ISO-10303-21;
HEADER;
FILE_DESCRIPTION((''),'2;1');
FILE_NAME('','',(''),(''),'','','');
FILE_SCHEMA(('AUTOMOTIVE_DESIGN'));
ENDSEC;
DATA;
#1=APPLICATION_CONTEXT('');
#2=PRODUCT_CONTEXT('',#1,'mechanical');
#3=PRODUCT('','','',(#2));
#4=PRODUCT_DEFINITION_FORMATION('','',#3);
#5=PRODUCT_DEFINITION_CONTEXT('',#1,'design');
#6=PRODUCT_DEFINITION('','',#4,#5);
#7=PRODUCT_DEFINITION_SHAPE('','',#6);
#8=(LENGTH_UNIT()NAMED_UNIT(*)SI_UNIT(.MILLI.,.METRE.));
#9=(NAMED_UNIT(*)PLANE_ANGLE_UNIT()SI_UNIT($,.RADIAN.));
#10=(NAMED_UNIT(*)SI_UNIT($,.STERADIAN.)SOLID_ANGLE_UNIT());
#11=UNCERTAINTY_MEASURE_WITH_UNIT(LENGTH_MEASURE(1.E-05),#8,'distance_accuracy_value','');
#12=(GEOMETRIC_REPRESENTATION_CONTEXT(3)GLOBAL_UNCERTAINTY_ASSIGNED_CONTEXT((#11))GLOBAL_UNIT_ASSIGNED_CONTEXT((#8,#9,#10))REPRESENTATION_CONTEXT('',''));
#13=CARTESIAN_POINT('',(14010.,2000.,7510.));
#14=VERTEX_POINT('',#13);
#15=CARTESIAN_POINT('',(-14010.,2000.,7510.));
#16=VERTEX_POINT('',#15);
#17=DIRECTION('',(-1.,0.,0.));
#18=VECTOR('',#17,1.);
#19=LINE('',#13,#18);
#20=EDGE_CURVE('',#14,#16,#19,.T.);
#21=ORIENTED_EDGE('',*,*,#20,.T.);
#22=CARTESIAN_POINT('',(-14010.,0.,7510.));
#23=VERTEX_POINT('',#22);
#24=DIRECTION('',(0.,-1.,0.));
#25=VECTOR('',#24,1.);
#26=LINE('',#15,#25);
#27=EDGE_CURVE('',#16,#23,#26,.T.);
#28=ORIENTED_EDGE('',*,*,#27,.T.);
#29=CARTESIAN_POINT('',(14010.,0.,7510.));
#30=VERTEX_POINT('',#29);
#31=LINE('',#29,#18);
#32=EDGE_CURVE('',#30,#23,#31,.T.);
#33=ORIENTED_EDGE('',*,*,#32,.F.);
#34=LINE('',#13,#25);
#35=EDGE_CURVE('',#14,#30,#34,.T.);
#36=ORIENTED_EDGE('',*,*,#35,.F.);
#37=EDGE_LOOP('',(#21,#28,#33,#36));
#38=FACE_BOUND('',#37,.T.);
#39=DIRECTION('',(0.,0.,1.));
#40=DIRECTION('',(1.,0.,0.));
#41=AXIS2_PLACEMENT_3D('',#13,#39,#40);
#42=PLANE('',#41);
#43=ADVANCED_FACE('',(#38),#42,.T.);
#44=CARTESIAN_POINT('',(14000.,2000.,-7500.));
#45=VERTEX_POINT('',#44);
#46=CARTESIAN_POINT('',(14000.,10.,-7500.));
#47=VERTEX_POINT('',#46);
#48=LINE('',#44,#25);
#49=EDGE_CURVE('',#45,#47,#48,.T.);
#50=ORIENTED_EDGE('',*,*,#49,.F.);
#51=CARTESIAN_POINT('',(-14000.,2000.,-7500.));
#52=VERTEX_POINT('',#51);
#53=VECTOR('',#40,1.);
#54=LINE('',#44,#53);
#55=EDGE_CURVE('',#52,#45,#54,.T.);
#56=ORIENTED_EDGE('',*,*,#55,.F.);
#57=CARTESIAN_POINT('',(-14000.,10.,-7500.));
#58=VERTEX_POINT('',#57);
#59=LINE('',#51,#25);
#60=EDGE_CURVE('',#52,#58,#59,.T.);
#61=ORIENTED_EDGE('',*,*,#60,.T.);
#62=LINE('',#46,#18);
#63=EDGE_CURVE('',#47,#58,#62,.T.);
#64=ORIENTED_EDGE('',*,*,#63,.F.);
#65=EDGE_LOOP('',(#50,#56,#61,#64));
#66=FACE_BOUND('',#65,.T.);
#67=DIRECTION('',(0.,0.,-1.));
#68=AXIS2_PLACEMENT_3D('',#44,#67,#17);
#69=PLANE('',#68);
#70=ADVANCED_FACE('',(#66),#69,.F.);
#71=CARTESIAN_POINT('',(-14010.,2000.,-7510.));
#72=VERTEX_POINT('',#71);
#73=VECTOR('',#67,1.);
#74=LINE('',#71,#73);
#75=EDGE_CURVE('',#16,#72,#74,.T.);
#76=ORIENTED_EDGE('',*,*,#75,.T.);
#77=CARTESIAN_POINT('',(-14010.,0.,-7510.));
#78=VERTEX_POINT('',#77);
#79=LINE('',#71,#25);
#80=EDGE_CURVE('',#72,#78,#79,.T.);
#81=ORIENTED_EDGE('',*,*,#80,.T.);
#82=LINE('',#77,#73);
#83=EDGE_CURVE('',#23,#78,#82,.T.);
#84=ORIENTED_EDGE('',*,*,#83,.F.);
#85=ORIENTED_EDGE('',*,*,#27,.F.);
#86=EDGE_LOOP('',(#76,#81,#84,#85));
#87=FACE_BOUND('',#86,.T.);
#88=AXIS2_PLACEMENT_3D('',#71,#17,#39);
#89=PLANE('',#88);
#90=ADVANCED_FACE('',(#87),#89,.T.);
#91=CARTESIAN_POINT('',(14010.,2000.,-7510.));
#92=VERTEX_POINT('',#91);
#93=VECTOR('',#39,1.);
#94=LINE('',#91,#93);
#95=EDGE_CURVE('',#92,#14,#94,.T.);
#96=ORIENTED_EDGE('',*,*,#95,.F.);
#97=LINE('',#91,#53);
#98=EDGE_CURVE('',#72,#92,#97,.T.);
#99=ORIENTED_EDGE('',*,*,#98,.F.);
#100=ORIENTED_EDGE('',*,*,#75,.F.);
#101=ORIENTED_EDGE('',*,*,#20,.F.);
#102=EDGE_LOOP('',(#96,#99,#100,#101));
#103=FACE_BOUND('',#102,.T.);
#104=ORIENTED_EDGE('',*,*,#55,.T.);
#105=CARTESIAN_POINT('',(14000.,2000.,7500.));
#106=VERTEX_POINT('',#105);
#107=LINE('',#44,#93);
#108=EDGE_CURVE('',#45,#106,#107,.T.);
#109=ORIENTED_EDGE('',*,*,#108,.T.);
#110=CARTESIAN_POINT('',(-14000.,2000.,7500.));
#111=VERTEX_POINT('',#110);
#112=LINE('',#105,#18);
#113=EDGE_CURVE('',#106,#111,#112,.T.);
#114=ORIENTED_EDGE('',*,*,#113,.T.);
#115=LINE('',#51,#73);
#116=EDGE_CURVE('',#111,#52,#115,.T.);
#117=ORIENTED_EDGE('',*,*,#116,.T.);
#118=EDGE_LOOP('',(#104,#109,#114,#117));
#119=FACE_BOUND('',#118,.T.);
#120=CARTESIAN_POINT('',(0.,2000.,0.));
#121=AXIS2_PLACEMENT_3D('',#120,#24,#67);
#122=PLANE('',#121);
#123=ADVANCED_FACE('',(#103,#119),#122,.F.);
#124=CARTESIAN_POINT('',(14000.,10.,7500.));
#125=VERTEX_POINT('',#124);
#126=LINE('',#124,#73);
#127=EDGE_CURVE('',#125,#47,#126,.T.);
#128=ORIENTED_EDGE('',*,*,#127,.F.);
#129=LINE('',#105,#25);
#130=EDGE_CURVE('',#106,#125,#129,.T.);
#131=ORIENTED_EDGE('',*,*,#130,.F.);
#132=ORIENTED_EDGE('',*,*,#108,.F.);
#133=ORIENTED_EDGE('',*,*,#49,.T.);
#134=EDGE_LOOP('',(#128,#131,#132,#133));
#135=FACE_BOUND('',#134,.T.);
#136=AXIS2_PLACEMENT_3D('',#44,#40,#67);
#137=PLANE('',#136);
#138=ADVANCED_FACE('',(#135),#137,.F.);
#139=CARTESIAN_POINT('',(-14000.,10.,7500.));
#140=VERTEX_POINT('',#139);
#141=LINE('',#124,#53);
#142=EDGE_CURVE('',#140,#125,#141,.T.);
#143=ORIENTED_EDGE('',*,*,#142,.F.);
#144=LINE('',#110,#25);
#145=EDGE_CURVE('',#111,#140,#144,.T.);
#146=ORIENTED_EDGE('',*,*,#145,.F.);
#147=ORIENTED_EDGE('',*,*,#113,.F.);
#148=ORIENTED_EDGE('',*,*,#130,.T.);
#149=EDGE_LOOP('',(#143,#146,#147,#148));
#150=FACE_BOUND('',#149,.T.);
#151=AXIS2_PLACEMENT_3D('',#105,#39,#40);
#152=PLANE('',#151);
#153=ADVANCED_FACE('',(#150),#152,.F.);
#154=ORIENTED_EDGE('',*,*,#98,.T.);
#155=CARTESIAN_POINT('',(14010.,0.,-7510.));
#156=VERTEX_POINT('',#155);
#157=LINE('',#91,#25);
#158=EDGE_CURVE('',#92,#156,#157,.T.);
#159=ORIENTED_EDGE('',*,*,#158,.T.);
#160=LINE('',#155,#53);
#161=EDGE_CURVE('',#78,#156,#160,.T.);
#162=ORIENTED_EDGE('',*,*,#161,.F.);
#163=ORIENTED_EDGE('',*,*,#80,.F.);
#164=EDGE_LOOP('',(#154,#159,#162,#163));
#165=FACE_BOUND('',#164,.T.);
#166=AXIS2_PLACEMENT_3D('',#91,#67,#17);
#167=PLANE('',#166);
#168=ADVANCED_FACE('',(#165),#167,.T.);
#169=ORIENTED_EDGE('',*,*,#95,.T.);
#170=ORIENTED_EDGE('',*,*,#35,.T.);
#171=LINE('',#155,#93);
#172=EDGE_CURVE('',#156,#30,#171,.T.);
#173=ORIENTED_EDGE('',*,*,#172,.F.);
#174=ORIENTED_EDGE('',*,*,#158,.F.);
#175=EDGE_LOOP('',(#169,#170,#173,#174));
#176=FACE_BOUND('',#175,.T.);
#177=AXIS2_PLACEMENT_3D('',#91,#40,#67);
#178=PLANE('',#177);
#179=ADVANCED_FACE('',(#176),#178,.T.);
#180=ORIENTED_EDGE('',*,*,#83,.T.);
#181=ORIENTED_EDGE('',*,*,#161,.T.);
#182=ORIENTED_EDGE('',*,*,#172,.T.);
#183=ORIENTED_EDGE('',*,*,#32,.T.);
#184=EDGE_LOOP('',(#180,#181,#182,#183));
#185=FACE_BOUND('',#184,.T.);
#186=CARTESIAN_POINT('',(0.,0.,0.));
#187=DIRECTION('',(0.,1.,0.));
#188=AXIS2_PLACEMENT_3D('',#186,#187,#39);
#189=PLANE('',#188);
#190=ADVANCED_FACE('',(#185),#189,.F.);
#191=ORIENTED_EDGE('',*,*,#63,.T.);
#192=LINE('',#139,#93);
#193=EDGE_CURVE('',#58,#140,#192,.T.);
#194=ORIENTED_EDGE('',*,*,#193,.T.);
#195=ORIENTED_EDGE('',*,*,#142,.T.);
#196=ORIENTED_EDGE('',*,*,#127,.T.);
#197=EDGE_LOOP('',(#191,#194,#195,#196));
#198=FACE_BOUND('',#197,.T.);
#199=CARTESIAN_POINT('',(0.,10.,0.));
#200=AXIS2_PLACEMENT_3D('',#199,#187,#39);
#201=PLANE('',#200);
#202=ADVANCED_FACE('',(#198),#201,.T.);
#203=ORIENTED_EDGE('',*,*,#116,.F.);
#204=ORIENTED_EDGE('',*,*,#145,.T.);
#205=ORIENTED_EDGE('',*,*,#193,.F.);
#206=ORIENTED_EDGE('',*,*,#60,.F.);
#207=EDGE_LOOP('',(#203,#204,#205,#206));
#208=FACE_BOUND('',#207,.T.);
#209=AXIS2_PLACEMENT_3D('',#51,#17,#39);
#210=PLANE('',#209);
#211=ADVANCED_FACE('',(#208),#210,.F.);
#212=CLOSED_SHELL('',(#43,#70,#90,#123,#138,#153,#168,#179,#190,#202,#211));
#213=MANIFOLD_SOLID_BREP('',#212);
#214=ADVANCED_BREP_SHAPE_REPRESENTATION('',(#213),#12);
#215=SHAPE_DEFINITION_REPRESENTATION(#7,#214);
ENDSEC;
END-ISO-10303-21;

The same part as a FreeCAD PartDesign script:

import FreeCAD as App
import Part
import Sketcher

V = App.Vector


def add_polygon(sketch, points):
    """Adds a closed chain of lines whose ends are joined by coincident constraints."""
    first, n = sketch.GeometryCount, len(points)
    for a, b in zip(points, points[1:] + points[:1]):
        sketch.addGeometry(Part.LineSegment(App.Vector(*a, 0), App.Vector(*b, 0)), False)
    for i in range(n):
        sketch.addConstraint(Sketcher.Constraint("Coincident", first + i, 2, first + (i + 1) % n, 1))

doc = App.newDocument("Part")
body = doc.addObject("PartDesign::Body", "Body")

# Sketch on XZ plane
sketch1 = doc.addObject("Sketcher::SketchObject", "Sketch")
body.addObject(sketch1)
sketch1.AttachmentSupport = (doc.XZ_Plane, [""])
sketch1.MapMode = "FlatFace"
add_polygon(sketch1, [(-14000, -7500), (-14000, 7500), (14000, 7500), (14000, -7500)])  # lines 0-3
sketch1.addConstraint(Sketcher.Constraint("Vertical", 0))
sketch1.addConstraint(Sketcher.Constraint("Horizontal", 1))
sketch1.addConstraint(Sketcher.Constraint("Vertical", 2))
sketch1.addConstraint(Sketcher.Constraint("Horizontal", 3))
sketch1.addConstraint(Sketcher.Constraint("Symmetric", 0, 2, 2, 2, -1, 1))
sketch1.addConstraint(Sketcher.Constraint("DistanceX", 1, 1, 1, 2, 28000.0))
sketch1.addConstraint(Sketcher.Constraint("DistanceY", 0, 1, 0, 2, 15000.0))
pad1 = doc.addObject("PartDesign::Pad", "Pad")
body.addObject(pad1)
pad1.Profile = sketch1
pad1.Length = 10
pad1.Reversed = True

# Sketch on XZ plane
sketch2 = doc.addObject("Sketcher::SketchObject", "Sketch001")
body.addObject(sketch2)
sketch2.AttachmentSupport = (doc.XZ_Plane, [""])
sketch2.MapMode = "FlatFace"
add_polygon(sketch2, [(-14010, 7510), (-14010, -7510), (14010, -7510), (14010, 7510)])  # lines 0-3
add_polygon(sketch2, [(14000, -7500), (-14000, -7500), (-14000, 7500), (14000, 7500)])  # lines 4-7
sketch2.addConstraint(Sketcher.Constraint("Vertical", 0))
sketch2.addConstraint(Sketcher.Constraint("Horizontal", 1))
sketch2.addConstraint(Sketcher.Constraint("Vertical", 2))
sketch2.addConstraint(Sketcher.Constraint("Horizontal", 3))
sketch2.addConstraint(Sketcher.Constraint("Horizontal", 4))
sketch2.addConstraint(Sketcher.Constraint("Vertical", 5))
sketch2.addConstraint(Sketcher.Constraint("Horizontal", 6))
sketch2.addConstraint(Sketcher.Constraint("Vertical", 7))
sketch2.addConstraint(Sketcher.Constraint("Symmetric", 0, 2, 2, 2, -1, 1))
sketch2.addConstraint(Sketcher.Constraint("Symmetric", 4, 2, 6, 2, -1, 1))
sketch2.addConstraint(Sketcher.Constraint("DistanceX", 1, 1, 1, 2, 28020.0))
sketch2.addConstraint(Sketcher.Constraint("DistanceX", 4, 2, 4, 1, 28000.0))
sketch2.addConstraint(Sketcher.Constraint("DistanceY", 0, 2, 0, 1, 15020.0))
sketch2.addConstraint(Sketcher.Constraint("DistanceY", 5, 1, 5, 2, 15000.0))
pad2 = doc.addObject("PartDesign::Pad", "Pad001")
body.addObject(pad2)
pad2.Profile = sketch2
pad2.Length = 2000
pad2.Reversed = True

doc.recompute()
